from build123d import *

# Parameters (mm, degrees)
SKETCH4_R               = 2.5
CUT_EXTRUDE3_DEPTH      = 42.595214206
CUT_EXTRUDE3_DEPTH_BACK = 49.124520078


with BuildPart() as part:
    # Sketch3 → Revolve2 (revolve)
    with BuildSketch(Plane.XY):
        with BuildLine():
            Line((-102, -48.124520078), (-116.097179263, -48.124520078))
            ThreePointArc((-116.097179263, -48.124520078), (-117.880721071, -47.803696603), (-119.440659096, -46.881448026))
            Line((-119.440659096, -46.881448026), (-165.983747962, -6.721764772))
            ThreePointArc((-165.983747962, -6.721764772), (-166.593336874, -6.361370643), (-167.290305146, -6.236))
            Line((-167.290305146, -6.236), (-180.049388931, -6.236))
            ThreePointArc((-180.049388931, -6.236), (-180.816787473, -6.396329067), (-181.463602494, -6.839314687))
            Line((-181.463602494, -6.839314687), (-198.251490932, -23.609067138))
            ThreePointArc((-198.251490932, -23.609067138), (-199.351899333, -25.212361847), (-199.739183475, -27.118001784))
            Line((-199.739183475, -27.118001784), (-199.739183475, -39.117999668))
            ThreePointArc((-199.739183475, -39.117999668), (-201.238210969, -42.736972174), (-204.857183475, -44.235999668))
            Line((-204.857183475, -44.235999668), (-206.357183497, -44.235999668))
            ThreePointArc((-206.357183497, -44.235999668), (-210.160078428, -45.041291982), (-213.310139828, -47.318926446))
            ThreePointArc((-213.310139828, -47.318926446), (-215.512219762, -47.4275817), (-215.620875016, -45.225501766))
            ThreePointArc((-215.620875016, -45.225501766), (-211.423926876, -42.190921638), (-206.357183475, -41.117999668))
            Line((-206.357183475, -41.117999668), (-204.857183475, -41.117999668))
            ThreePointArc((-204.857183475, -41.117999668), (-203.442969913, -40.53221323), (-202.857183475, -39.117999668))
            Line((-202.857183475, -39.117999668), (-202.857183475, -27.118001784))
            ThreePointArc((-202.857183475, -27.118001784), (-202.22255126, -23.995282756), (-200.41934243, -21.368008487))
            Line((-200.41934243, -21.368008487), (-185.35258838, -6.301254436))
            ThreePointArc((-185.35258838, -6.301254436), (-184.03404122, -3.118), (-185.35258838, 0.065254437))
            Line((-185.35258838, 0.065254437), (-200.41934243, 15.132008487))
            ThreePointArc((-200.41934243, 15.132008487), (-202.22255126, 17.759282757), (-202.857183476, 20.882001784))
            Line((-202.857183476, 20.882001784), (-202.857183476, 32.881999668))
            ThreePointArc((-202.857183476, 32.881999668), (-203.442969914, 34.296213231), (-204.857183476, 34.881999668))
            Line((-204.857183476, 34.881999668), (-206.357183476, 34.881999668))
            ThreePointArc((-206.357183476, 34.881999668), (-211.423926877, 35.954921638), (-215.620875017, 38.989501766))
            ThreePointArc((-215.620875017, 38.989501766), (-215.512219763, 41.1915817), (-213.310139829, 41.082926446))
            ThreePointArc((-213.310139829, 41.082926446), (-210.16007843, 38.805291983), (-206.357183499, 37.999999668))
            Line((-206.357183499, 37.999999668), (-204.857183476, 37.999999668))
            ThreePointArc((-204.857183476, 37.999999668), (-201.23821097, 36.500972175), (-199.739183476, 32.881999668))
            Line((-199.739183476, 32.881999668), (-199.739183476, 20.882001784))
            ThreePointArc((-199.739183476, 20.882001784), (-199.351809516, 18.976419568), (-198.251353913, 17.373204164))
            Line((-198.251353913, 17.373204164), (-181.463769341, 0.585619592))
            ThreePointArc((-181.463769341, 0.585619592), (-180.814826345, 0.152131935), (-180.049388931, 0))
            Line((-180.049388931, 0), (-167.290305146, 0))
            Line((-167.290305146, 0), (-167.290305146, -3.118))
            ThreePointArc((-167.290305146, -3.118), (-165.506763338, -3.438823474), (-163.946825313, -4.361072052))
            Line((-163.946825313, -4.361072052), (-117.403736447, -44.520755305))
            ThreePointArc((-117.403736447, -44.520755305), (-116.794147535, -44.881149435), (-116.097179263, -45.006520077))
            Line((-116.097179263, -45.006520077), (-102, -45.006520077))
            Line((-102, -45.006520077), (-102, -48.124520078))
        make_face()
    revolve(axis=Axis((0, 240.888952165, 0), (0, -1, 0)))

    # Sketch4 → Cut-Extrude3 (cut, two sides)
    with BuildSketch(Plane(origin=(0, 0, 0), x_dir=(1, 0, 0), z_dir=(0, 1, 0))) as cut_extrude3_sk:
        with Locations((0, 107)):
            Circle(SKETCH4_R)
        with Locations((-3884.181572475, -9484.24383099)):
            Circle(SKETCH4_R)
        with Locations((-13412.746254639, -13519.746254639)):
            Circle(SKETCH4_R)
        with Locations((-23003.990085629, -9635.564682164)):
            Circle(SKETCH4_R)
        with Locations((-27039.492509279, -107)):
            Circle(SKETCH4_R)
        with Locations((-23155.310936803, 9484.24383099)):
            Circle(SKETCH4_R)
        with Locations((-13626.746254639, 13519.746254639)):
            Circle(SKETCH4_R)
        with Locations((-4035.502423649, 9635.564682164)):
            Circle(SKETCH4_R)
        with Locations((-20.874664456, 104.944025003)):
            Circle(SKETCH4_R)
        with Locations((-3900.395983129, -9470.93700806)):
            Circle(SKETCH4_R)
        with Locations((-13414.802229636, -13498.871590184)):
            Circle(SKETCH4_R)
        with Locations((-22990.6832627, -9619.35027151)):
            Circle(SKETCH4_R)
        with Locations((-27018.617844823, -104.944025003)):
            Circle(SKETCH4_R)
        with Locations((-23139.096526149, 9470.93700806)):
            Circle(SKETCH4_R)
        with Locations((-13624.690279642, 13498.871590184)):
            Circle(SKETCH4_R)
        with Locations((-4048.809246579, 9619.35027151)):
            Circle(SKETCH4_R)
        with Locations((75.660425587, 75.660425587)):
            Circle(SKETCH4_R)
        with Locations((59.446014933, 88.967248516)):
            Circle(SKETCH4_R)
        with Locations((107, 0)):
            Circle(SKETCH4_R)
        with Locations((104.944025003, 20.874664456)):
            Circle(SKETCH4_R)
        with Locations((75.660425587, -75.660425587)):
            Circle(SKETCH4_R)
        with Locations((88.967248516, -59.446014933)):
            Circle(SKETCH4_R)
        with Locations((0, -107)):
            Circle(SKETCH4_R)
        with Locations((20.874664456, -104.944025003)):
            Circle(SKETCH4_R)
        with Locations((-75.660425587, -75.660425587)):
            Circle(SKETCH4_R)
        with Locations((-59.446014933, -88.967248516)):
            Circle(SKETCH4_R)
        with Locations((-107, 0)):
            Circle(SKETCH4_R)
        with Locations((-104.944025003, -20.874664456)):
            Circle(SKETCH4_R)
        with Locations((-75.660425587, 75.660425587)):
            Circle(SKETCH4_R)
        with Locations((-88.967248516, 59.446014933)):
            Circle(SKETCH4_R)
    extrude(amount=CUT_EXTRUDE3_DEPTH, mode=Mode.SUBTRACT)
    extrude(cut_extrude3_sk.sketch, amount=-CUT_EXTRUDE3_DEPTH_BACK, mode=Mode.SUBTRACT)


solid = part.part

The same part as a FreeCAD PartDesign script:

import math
import FreeCAD as App
import Part
import Sketcher
from FreeCAD import Vector
Q = App.Units.Quantity

doc = App.newDocument("Part")
params = doc.addObject("Spreadsheet::Sheet", "Params")
for row, (alias, value) in enumerate([
    ("sketch1_radius", "2 mm"),
    ("sketch1_radius2", "8.000002 mm"),
    ("sketch1_radius3", "12.5 mm"),
    ("sketch1_width", "1.5 mm"),
    ("revolution_angle", "360 deg"),
    ("sketch2_diameter", "5 mm"),
], start=1):
    params.set(f"A{row}", alias)
    params.set(f"B{row}", "=" + value)
    params.setAlias(f"B{row}", alias)

body = doc.addObject("PartDesign::Body", "Body")

sketch1 = doc.addObject("Sketcher::SketchObject", "Sketch")
body.addObject(sketch1)
sketch1.AttachmentSupport = (doc.XY_Plane, [""])
sketch1.MapMode = "FlatFace"
sketch1.addGeometry([
    Part.LineSegment(Vector(-116.097179, -48.12452, 0), Vector(-102, -48.12452, 0)),
    Part.LineSegment(Vector(-102, -48.12452, 0), Vector(-102, -45.00652, 0)),
    Part.LineSegment(Vector(-102, -45.00652, 0), Vector(-116.097179, -45.00652, 0)),
    Part.ArcOfCircle(Part.Circle(Vector(-116.097179, -43.00652, 0), Vector(0, 0, 1), 2), math.radians(-130.789252), math.radians(-90)),
    Part.LineSegment(Vector(-117.403736, -44.520755, 0), Vector(-163.946825, -4.361072, 0)),
    Part.ArcOfCircle(Part.Circle(Vector(-167.290305, -8.236, 0), Vector(0, 0, 1), 5.118), math.radians(49.210748), math.radians(90)),
    Part.LineSegment(Vector(-167.290305, -3.118, 0), Vector(-167.290305, 0, 0)),
    Part.LineSegment(Vector(-167.290305, 0, 0), Vector(-180.049389, 0, 0)),
    Part.ArcOfCircle(Part.Circle(Vector(-180.049723, 2, 0), Vector(0, 0, 1), 2), math.radians(-134.993241), math.radians(-89.990441)),
    Part.LineSegment(Vector(-181.463769, 0.58562, 0), Vector(-198.251354, 17.373204, 0)),
    Part.ArcOfCircle(Part.Circle(Vector(-194.857182, 20.882269, 0), Vector(0, 0, 1), 4.882002), math.radians(-179.996864), math.radians(-134.046497)),
    Part.LineSegment(Vector(-199.739183, 20.882002, 0), Vector(-199.739183, 32.882, 0)),
    Part.ArcOfCircle(Part.Circle(Vector(-204.857183, 32.882, 0), Vector(0, 0, 1), 5.118), math.radians(0), math.radians(90)),
    Part.LineSegment(Vector(-204.857183, 38, 0), Vector(-206.357183, 38, 0)),
    Part.ArcOfCircle(Part.Circle(Vector(-206.357184, 47.382, 0), Vector(0, 0, 1), 9.382), math.radians(-137.824803), math.radians(-90)),
    Part.ArcOfCircle(Part.Circle(Vector(-214.465507, 40.036214, 0), Vector(0, 0, 1), 1.559), math.radians(42.175197), math.radians(222.175197)),
    Part.ArcOfCircle(Part.Circle(Vector(-206.357184, 47.382, 0), Vector(0, 0, 1), 12.5), math.radians(-137.824803), math.radians(-90)),
    Part.LineSegment(Vector(-206.357183, 34.882, 0), Vector(-204.857183, 34.882, 0)),
    Part.ArcOfCircle(Part.Circle(Vector(-204.857183, 32.882, 0), Vector(0, 0, 1), 2), math.radians(0), math.radians(90)),
    Part.LineSegment(Vector(-202.857183, 32.882, 0), Vector(-202.857183, 20.882002, 0)),
    Part.ArcOfCircle(Part.Circle(Vector(-194.857182, 20.881999, 0), Vector(0, 0, 1), 8.000002), math.radians(179.999983), math.radians(225.951269)),
    Part.LineSegment(Vector(-200.419342, 15.132008, 0), Vector(-185.352588, 0.065254, 0)),
    Part.ArcOfCircle(Part.Circle(Vector(-188.535843, -3.118, 0), Vector(0, 0, 1), 4.501802), math.radians(-45), math.radians(45)),
    Part.LineSegment(Vector(-185.352588, -6.301254, 0), Vector(-200.419342, -21.368008, 0)),
    Part.ArcOfCircle(Part.Circle(Vector(-194.857182, -27.117999, 0), Vector(0, 0, 1), 8.000002), math.radians(134.048731), math.radians(180.000017)),
    Part.LineSegment(Vector(-202.857183, -27.118002, 0), Vector(-202.857183, -39.118, 0)),
    Part.ArcOfCircle(Part.Circle(Vector(-204.857183, -39.118, 0), Vector(0, 0, 1), 2), math.radians(-90), math.radians(0)),
    Part.LineSegment(Vector(-204.857183, -41.118, 0), Vector(-206.357183, -41.118, 0)),
    Part.ArcOfCircle(Part.Circle(Vector(-206.357184, -53.618, 0), Vector(0, 0, 1), 12.5), math.radians(90), math.radians(137.824803)),
    Part.ArcOfCircle(Part.Circle(Vector(-214.465507, -46.272214, 0), Vector(0, 0, 1), 1.559), math.radians(137.824803), math.radians(317.824803)),
    Part.ArcOfCircle(Part.Circle(Vector(-206.357184, -53.618, 0), Vector(0, 0, 1), 9.382), math.radians(90), math.radians(137.824803)),
    Part.LineSegment(Vector(-206.357183, -44.236, 0), Vector(-204.857183, -44.236, 0)),
    Part.ArcOfCircle(Part.Circle(Vector(-204.857183, -39.118, 0), Vector(0, 0, 1), 5.118), math.radians(-90), math.radians(0)),
    Part.LineSegment(Vector(-199.739183, -39.118, 0), Vector(-199.739183, -27.118002, 0)),
    Part.ArcOfCircle(Part.Circle(Vector(-194.857182, -27.117999, 0), Vector(0, 0, 1), 4.882002), math.radians(134.048734), math.radians(180.000027)),
    Part.LineSegment(Vector(-198.251491, -23.609067, 0), Vector(-181.463602, -6.839315, 0)),
    Part.ArcOfCircle(Part.Circle(Vector(-180.032002, -8.235924, 0), Vector(0, 0, 1), 2), math.radians(90.498118), math.radians(135.708839)),
    Part.LineSegment(Vector(-180.049389, -6.236, 0), Vector(-167.290305, -6.236, 0)),
    Part.ArcOfCircle(Part.Circle(Vector(-167.290305, -8.236, 0), Vector(0, 0, 1), 2), math.radians(49.210748), math.radians(90)),
    Part.LineSegment(Vector(-165.983748, -6.721765, 0), Vector(-119.440659, -46.881448, 0)),
    Part.ArcOfCircle(Part.Circle(Vector(-116.097179, -43.00652, 0), Vector(0, 0, 1), 5.118), math.radians(-130.789252), math.radians(-90)),
], False)
sketch1.addConstraint([
    Sketcher.Constraint("Coincident", 0, 2, 1, 1),
    Sketcher.Constraint("Coincident", 1, 2, 2, 1),
    Sketcher.Constraint("Tangent", 2, 2, 3, 2),
    Sketcher.Constraint("Tangent", 3, 1, 4, 1),
    Sketcher.Constraint("Tangent", 4, 2, 5, 1),
    Sketcher.Constraint("Coincident", 5, 2, 6, 1),
    Sketcher.Constraint("Coincident", 6, 2, 7, 1),
    Sketcher.Constraint("Coincident", 7, 2, 8, 2),
    Sketcher.Constraint("Coincident", 8, 1, 9, 1),
    Sketcher.Constraint("Coincident", 9, 2, 10, 2),
    Sketcher.Constraint("Coincident", 10, 1, 11, 1),
    Sketcher.Constraint("Tangent", 11, 2, 12, 1),
    Sketcher.Constraint("Tangent", 12, 2, 13, 1),
    Sketcher.Constraint("Tangent", 13, 2, 14, 2),
    Sketcher.Constraint("Tangent", 14, 1, 15, 1),
    Sketcher.Constraint("Tangent", 15, 2, 16, 1),
    Sketcher.Constraint("Tangent", 16, 2, 17, 1),
    Sketcher.Constraint("Tangent", 17, 2, 18, 2),
    Sketcher.Constraint("Tangent", 18, 1, 19, 1),
    Sketcher.Constraint("Tangent", 19, 2, 20, 1),
    Sketcher.Constraint("Coincident", 20, 2, 21, 1),
    Sketcher.Constraint("Tangent", 21, 2, 22, 2),
    Sketcher.Constraint("Tangent", 22, 1, 23, 1),
    Sketcher.Constraint("Coincident", 23, 2, 24, 1),
    Sketcher.Constraint("Tangent", 24, 2, 25, 1),
    Sketcher.Constraint("Tangent", 25, 2, 26, 2),
    Sketcher.Constraint("Tangent", 26, 1, 27, 1),
    Sketcher.Constraint("Tangent", 27, 2, 28, 1),
    Sketcher.Constraint("Tangent", 28, 2, 29, 1),
    Sketcher.Constraint("Tangent", 29, 2, 30, 2),
    Sketcher.Constraint("Tangent", 30, 1, 31, 1),
    Sketcher.Constraint("Tangent", 31, 2, 32, 1),
    Sketcher.Constraint("Tangent", 32, 2, 33, 1),
    Sketcher.Constraint("Tangent", 33, 2, 34, 2),
    Sketcher.Constraint("Coincident", 34, 1, 35, 1),
    Sketcher.Constraint("Coincident", 35, 2, 36, 2),
    Sketcher.Constraint("Coincident", 36, 1, 37, 1),
    Sketcher.Constraint("Tangent", 37, 2, 38, 2),
    Sketcher.Constraint("Tangent", 38, 1, 39, 1),
    Sketcher.Constraint("Tangent", 39, 2, 40, 1),
    Sketcher.Constraint("Tangent", 40, 2, 0, 1),
    Sketcher.Constraint("Horizontal", 0),
    Sketcher.Constraint("Vertical", 1),
    Sketcher.Constraint("Horizontal", 2),
    Sketcher.Constraint("Vertical", 6),
    Sketcher.Constraint("Horizontal", 7),
    Sketcher.Constraint("Vertical", 11),
    Sketcher.Constraint("Horizontal", 13),
    Sketcher.Constraint("Horizontal", 17),
    Sketcher.Constraint("Vertical", 19),
    Sketcher.Constraint("Vertical", 25),
    Sketcher.Constraint("Horizontal", 27),
    Sketcher.Constraint("Horizontal", 31),
    Sketcher.Constraint("Vertical", 33),
    Sketcher.Constraint("Horizontal", 37),
    Sketcher.Constraint("Coincident", 16, 3, 14, 3),
    Sketcher.Constraint("Coincident", 18, 3, 12, 3),
    Sketcher.Constraint("Coincident", 30, 3, 28, 3),
    Sketcher.Constraint("Coincident", 32, 3, 26, 3),
    Sketcher.Constraint("Coincident", 34, 3, 24, 3),
    Sketcher.Constraint("Coincident", 38, 3, 5, 3),
    Sketcher.Constraint("Coincident", 40, 3, 3, 3),
    Sketcher.Constraint("Equal", 3, 8),
    Sketcher.Constraint("Equal", 5, 12),
    Sketcher.Constraint("Equal", 8, 18),
    Sketcher.Constraint("Equal", 20, 24),
    Sketcher.Constraint("Equal", 18, 26),
    Sketcher.Constraint("Equal", 16, 28),
    Sketcher.Constraint("Equal", 15, 29),
    Sketcher.Constraint("Equal", 10, 34),
    Sketcher.Constraint("Equal", 26, 36),
    Sketcher.Constraint("Equal", 36, 38),
    Sketcher.Constraint("Equal", 32, 40),
    Sketcher.Constraint("PointOnObject", 6, 2, -1),
    Sketcher.Constraint("Parallel", 9, 21),
    Sketcher.Constraint("Perpendicular", 21, 23),
    Sketcher.Constraint("Horizontal", 22, 3, 5, 2),
    Sketcher.Constraint("Horizontal", 10, 1, 19, 2),
    Sketcher.Constraint("Vertical", 20, 3, 24, 3),
    Sketcher.Constraint("Vertical", 16, 3, 28, 3),
    Sketcher.Constraint("Vertical", 15, 3, 29, 3),
    Sketcher.Constraint("Vertical", 38, 3, 5, 2),
    Sketcher.Constraint("Vertical", 21, 2, 22, 1),
    Sketcher.Constraint("Vertical", 20, 2, 23, 2),
    Sketcher.Constraint("Vertical", 7, 2, 36, 1),
    Sketcher.Constraint("Equal", 1, 6),
    Sketcher.Constraint("Equal", 19, 25),
    Sketcher.Constraint("Radius", 3, Q("2 mm")),
    Sketcher.Constraint("Radius", 20, Q("8.000002 mm")),
    Sketcher.Constraint("Radius", 16, Q("12.5 mm")),
    Sketcher.Constraint("DistanceX", 13, 2, 13, 1, Q("1.5 mm")),
    Sketcher.Constraint("DistanceX", 0, 2, -1, 1, Q("102 mm")),
    Sketcher.Constraint("DistanceY", -1, 1, 12, 2, Q("38 mm")),
    Sketcher.Constraint("Radius", 5, Q("5.118 mm")),
    Sketcher.Constraint("Radius", 22, Q("4.501802 mm")),
    Sketcher.Constraint("DistanceY", -1, 1, 20, 3, Q("20.881999 mm")),
    Sketcher.Constraint("DistanceX", 36, 3, -1, 1, Q("180.032002 mm")),
    Sketcher.Constraint("DistanceX", 0, 1, 0, 2, Q("14.097179 mm")),
    Sketcher.Constraint("DistanceY", -1, 1, 15, 2, Q("38.989502 mm")),
    Sketcher.Constraint("Distance", 9, Q("23.74123 mm")),
    Sketcher.Constraint("Distance", 35, Q("23.728839 mm")),
    Sketcher.Constraint("DistanceX", 7, 2, 7, 1, Q("12.759084 mm")),
    Sketcher.Constraint("DistanceY", 3, 3, -1, 1, Q("43.00652 mm")),
    Sketcher.Constraint("DistanceX", 10, 3, -1, 1, Q("194.857182 mm")),
    Sketcher.Constraint("DistanceY", -1, 1, 10, 3, Q("20.882269 mm")),
    Sketcher.Constraint("DistanceX", 7, 2, -1, 1, Q("180.049389 mm")),
    Sketcher.Constraint("DistanceX", 8, 1, -1, 1, Q("181.463769 mm")),
    Sketcher.Constraint("DistanceY", -1, 1, 20, 2, Q("15.132008 mm")),
    Sketcher.Constraint("DistanceX", 34, 1, -1, 1, Q("198.251491 mm")),
])
sketch1.setExpression("Constraints[87]", "Params.sketch1_radius")
sketch1.setExpression("Constraints[88]", "Params.sketch1_radius2")
sketch1.setExpression("Constraints[89]", "Params.sketch1_radius3")
sketch1.setExpression("Constraints[90]", "Params.sketch1_width")
revolution = doc.addObject("PartDesign::Revolution", "Revolution")
body.addObject(revolution)
revolution.Profile = sketch1
revolution.ReferenceAxis = (sketch1, ["V_Axis"])
revolution.setExpression("Angle", "Params.revolution_angle")

sketch2 = doc.addObject("Sketcher::SketchObject", "Sketch001")
body.addObject(sketch2)
sketch2.AttachmentSupport = (doc.XZ_Plane, [""])
sketch2.MapMode = "FlatFace"
sketch2.addGeometry([
    Part.Circle(Vector(0, -107, 0), Vector(0, 0, 1), 2.5),
    Part.Circle(Vector(-3884.181572, 9484.243831, 0), Vector(0, 0, 1), 2.5),
    Part.Circle(Vector(-13412.746255, 13519.746255, 0), Vector(0, 0, 1), 2.5),
    Part.Circle(Vector(-23003.990086, 9635.564682, 0), Vector(0, 0, 1), 2.5),
    Part.Circle(Vector(-27039.492509, 107, 0), Vector(0, 0, 1), 2.5),
    Part.Circle(Vector(-23155.310937, -9484.243831, 0), Vector(0, 0, 1), 2.5),
    Part.Circle(Vector(-13626.746255, -13519.746255, 0), Vector(0, 0, 1), 2.5),
    Part.Circle(Vector(-4035.502424, -9635.564682, 0), Vector(0, 0, 1), 2.5),
    Part.Circle(Vector(-20.874664, -104.944025, 0), Vector(0, 0, 1), 2.5),
    Part.Circle(Vector(-3900.395983, 9470.937008, 0), Vector(0, 0, 1), 2.5),
    Part.Circle(Vector(-13414.80223, 13498.87159, 0), Vector(0, 0, 1), 2.5),
    Part.Circle(Vector(-22990.683263, 9619.350272, 0), Vector(0, 0, 1), 2.5),
    Part.Circle(Vector(-27018.617845, 104.944025, 0), Vector(0, 0, 1), 2.5),
    Part.Circle(Vector(-23139.096526, -9470.937008, 0), Vector(0, 0, 1), 2.5),
    Part.Circle(Vector(-13624.69028, -13498.87159, 0), Vector(0, 0, 1), 2.5),
    Part.Circle(Vector(-4048.809247, -9619.350272, 0), Vector(0, 0, 1), 2.5),
    Part.Circle(Vector(75.660426, -75.660426, 0), Vector(0, 0, 1), 2.5),
    Part.Circle(Vector(59.446015, -88.967249, 0), Vector(0, 0, 1), 2.5),
    Part.Circle(Vector(107, 0, 0), Vector(0, 0, 1), 2.5),
    Part.Circle(Vector(104.944025, -20.874664, 0), Vector(0, 0, 1), 2.5),
    Part.Circle(Vector(75.660426, 75.660426, 0), Vector(0, 0, 1), 2.5),
    Part.Circle(Vector(88.967249, 59.446015, 0), Vector(0, 0, 1), 2.5),
    Part.Circle(Vector(0, 107, 0), Vector(0, 0, 1), 2.5),
    Part.Circle(Vector(20.874664, 104.944025, 0), Vector(0, 0, 1), 2.5),
    Part.Circle(Vector(-75.660426, 75.660426, 0), Vector(0, 0, 1), 2.5),
    Part.Circle(Vector(-59.446015, 88.967249, 0), Vector(0, 0, 1), 2.5),
    Part.Circle(Vector(-107, 0, 0), Vector(0, 0, 1), 2.5),
    Part.Circle(Vector(-104.944025, 20.874664, 0), Vector(0, 0, 1), 2.5),
    Part.Circle(Vector(-75.660426, -75.660426, 0), Vector(0, 0, 1), 2.5),
    Part.Circle(Vector(-88.967249, -59.446015, 0), Vector(0, 0, 1), 2.5),
], False)
sketch2.addConstraint([
    Sketcher.Constraint("Equal", 0, 1),
    Sketcher.Constraint("Equal", 1, 2),
    Sketcher.Constraint("Equal", 2, 3),
    Sketcher.Constraint("Equal", 3, 4),
    Sketcher.Constraint("Equal", 4, 5),
    Sketcher.Constraint("Equal", 5, 6),
    Sketcher.Constraint("Equal", 6, 7),
    Sketcher.Constraint("Equal", 7, 8),
    Sketcher.Constraint("Equal", 8, 9),
    Sketcher.Constraint("Equal", 9, 10),
    Sketcher.Constraint("Equal", 10, 11),
    Sketcher.Constraint("Equal", 11, 12),
    Sketcher.Constraint("Equal", 12, 13),
    Sketcher.Constraint("Equal", 13, 14),
    Sketcher.Constraint("Equal", 14, 15),
    Sketcher.Constraint("Equal", 15, 16),
    Sketcher.Constraint("Equal", 16, 17),
    Sketcher.Constraint("Equal", 17, 18),
    Sketcher.Constraint("Equal", 18, 19),
    Sketcher.Constraint("Equal", 19, 20),
    Sketcher.Constraint("Equal", 20, 21),
    Sketcher.Constraint("Equal", 21, 22),
    Sketcher.Constraint("Equal", 22, 23),
    Sketcher.Constraint("Equal", 23, 24),
    Sketcher.Constraint("Equal", 24, 25),
    Sketcher.Constraint("Equal", 25, 26),
    Sketcher.Constraint("Equal", 26, 27),
    Sketcher.Constraint("Equal", 27, 28),
    Sketcher.Constraint("Equal", 28, 29),
    Sketcher.Constraint("Symmetric", 0, 3, 22, 3, -1, 1),
    Sketcher.Constraint("Symmetric", 8, 3, 23, 3, -1, 1),
    Sketcher.Constraint("Symmetric", 16, 3, 24, 3, -1, 1),
    Sketcher.Constraint("Symmetric", 17, 3, 25, 3, -1, 1),
    Sketcher.Constraint("Symmetric", 18, 3, 26, 3, -1, 1),
    Sketcher.Constraint("Symmetric", 19, 3, 27, 3, -1, 1),
    Sketcher.Constraint("Symmetric", 20, 3, 28, 3, -1, 1),
    Sketcher.Constraint("Symmetric", 21, 3, 29, 3, -1, 1),
    Sketcher.Constraint("Symmetric", 20, 3, 24, 3, -2),
    Sketcher.Constraint("PointOnObject", 0, 3, -2),
    Sketcher.Constraint("PointOnObject", 18, 3, -1),
    Sketcher.Constraint("Horizontal", 4, 3, 22, 3),
    Sketcher.Constraint("Horizontal", 12, 3, 23, 3),
    Sketcher.Constraint("Diameter", 0, Q("5 mm")),
    Sketcher.Constraint("DistanceY", 0, 3, -1, 1, Q("107 mm")),
    Sketcher.Constraint("DistanceX", -1, 1, 18, 3, Q("107 mm")),
    Sketcher.Constraint("DistanceX", 1, 3, 16, 3, Q("3959.841998 mm")),
    Sketcher.Constraint("DistanceX", 9, 3, 17, 3, Q("3959.841998 mm")),
    Sketcher.Constraint("DistanceY", 8, 3, 16, 3, Q("29.283599 mm")),
    Sketcher.Constraint("DistanceX", 16, 3, 19, 3, Q("29.283599 mm")),
    Sketcher.Constraint("DistanceY", -1, 1, 1, 3, Q("9484.243831 mm")),
    Sketcher.Constraint("DistanceX", 4, 3, -1, 1, Q("27039.492509 mm")),
    Sketcher.Constraint("DistanceY", 5, 3, -1, 1, Q("9484.243831 mm")),
    Sketcher.Constraint("DistanceY", -1, 1, 9, 3, Q("9470.937008 mm")),
    Sketcher.Constraint("DistanceX", 10, 3, -1, 1, Q("13414.80223 mm")),
    Sketcher.Constraint("DistanceY", -1, 1, 10, 3, Q("13498.87159 mm")),
    Sketcher.Constraint("DistanceY", -1, 1, 11, 3, Q("9619.350272 mm")),
    Sketcher.Constraint("DistanceY", 13, 3, -1, 1, Q("9470.937008 mm")),
    Sketcher.Constraint("DistanceX", 14, 3, -1, 1, Q("13624.69028 mm")),
    Sketcher.Constraint("DistanceY", 14, 3, -1, 1, Q("13498.87159 mm")),
    Sketcher.Constraint("DistanceY", 15, 3, -1, 1, Q("9619.350272 mm")),
    Sketcher.Constraint("DistanceY", 17, 3, -1, 1, Q("88.967249 mm")),
    Sketcher.Constraint("DistanceX", -1, 1, 21, 3, Q("88.967249 mm")),
    Sketcher.Constraint("DistanceX", 3, 3, 2, 3, Q("9591.243831 mm")),
    Sketcher.Constraint("DistanceY", 1, 3, 3, 3, Q("151.320851 mm")),
    Sketcher.Constraint("DistanceX", 5, 3, 3, 3, Q("151.320851 mm")),
    Sketcher.Constraint("DistanceX", 3, 3, 6, 3, Q("9377.243831 mm")),
    Sketcher.Constraint("DistanceX", 6, 3, 7, 3, Q("9591.243831 mm")),
    Sketcher.Constraint("DistanceX", 7, 3, 1, 3, Q("151.320851 mm")),
    Sketcher.Constraint("DistanceY", 7, 3, 5, 3, Q("151.320851 mm")),
    Sketcher.Constraint("DistanceX", 1, 3, 8, 3, Q("3863.306908 mm")),
    Sketcher.Constraint("DistanceY", 8, 3, 2, 3, Q("13624.69028 mm")),
    Sketcher.Constraint("DistanceY", 6, 3, 8, 3, Q("13414.80223 mm")),
    Sketcher.Constraint("DistanceX", 9, 3, 1, 3, Q("16.214411 mm")),
    Sketcher.Constraint("DistanceX", 11, 3, 2, 3, Q("9577.937008 mm")),
    Sketcher.Constraint("DistanceX", 12, 3, 5, 3, Q("3863.306908 mm")),
    Sketcher.Constraint("DistanceX", 5, 3, 13, 3, Q("16.214411 mm")),
    Sketcher.Constraint("DistanceX", 6, 3, 15, 3, Q("9577.937008 mm")),
    Sketcher.Constraint("DistanceY", 16, 3, 19, 3, Q("54.785761 mm")),
    Sketcher.Constraint("DistanceY", 19, 3, 20, 3, Q("96.53509 mm")),
    Sketcher.Constraint("DistanceY", 21, 3, 20, 3, Q("16.214411 mm")),
    Sketcher.Constraint("DistanceX", 23, 3, 20, 3, Q("54.785761 mm")),
])
sketch2.setExpression("Constraints[42]", "Params.sketch2_diameter")
pocket1 = doc.addObject("PartDesign::Pocket", "Pocket")
body.addObject(pocket1)
pocket1.Profile = sketch2
pocket1.Type = "ThroughAll"
pocket1.Midplane = True

doc.recompute()
